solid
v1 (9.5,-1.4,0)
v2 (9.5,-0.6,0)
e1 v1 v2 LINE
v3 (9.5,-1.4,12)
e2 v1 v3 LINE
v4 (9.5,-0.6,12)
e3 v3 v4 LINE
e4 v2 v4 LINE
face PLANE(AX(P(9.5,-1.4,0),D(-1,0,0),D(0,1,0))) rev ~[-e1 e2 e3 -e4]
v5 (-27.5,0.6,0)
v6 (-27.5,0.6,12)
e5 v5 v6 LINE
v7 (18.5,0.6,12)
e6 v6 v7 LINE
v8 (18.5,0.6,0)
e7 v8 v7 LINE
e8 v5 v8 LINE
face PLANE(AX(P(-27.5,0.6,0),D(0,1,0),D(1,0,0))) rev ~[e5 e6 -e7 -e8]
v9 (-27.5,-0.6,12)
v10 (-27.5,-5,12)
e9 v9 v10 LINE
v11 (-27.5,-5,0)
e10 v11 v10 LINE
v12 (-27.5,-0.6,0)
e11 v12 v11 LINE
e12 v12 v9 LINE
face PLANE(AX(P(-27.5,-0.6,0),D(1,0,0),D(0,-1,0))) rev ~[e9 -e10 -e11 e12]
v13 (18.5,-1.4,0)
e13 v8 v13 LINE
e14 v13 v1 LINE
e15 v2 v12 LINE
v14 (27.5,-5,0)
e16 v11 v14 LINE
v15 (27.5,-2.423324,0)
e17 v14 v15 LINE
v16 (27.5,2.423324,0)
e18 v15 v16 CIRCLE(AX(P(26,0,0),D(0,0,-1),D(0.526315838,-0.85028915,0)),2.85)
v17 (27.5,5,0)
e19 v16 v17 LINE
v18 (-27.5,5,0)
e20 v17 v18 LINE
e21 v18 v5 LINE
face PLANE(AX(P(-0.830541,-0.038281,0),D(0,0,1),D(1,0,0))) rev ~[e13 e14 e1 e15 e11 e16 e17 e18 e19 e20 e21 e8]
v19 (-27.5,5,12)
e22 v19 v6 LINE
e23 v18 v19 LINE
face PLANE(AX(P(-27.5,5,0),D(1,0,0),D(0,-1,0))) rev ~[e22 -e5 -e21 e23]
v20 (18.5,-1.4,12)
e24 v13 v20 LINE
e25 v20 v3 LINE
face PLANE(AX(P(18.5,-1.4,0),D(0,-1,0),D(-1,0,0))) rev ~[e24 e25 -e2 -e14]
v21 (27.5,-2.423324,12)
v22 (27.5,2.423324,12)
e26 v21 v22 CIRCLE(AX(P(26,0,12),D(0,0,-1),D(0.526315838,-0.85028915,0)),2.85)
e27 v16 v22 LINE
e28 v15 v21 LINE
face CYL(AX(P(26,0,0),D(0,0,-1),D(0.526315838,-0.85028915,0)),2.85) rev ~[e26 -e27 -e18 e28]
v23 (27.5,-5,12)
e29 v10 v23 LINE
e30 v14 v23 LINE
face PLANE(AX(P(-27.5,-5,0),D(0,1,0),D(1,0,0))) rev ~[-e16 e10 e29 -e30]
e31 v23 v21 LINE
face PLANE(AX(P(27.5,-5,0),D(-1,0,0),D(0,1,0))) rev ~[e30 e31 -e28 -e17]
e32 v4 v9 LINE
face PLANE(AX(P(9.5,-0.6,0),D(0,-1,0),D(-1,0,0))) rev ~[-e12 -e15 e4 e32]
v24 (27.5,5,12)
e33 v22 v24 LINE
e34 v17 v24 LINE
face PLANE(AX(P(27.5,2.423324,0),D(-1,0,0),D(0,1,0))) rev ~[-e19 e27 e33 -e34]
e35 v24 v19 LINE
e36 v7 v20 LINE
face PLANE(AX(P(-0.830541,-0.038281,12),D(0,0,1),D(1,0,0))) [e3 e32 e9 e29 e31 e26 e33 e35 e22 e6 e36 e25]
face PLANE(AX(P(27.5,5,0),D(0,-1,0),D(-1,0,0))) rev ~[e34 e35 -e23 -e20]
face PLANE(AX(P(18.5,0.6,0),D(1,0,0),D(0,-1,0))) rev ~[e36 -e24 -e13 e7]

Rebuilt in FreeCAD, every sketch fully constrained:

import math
import FreeCAD as App
import Part
import Sketcher

V = App.Vector

doc = App.newDocument("Part")
body = doc.addObject("PartDesign::Body", "Body")

# Sketch on XY plane
sketch1 = doc.addObject("Sketcher::SketchObject", "Sketch")
body.addObject(sketch1)
sketch1.AttachmentSupport = (doc.XY_Plane, [""])
sketch1.MapMode = "FlatFace"
sketch1.addGeometry([
    Part.LineSegment(V(27.5, 2.4, 0), V(27.5, 5, 0)),  # 0
    Part.LineSegment(V(27.5, 5, 0), V(-27.5, 5, 0)),  # 1
    Part.LineSegment(V(-27.5, 5, 0), V(-27.5, 0.6, 0)),  # 2
    Part.LineSegment(V(-27.5, 0.6, 0), V(18.5, 0.6, 0)),  # 3
    Part.LineSegment(V(18.5, 0.6, 0), V(18.5, -1.4, 0)),  # 4
    Part.LineSegment(V(18.5, -1.4, 0), V(9.5, -1.4, 0)),  # 5
    Part.LineSegment(V(9.5, -1.4, 0), V(9.5, -0.6, 0)),  # 6
    Part.LineSegment(V(9.5, -0.6, 0), V(-27.5, -0.6, 0)),  # 7
    Part.LineSegment(V(-27.5, -0.6, 0), V(-27.5, -5, 0)),  # 8
    Part.LineSegment(V(-27.5, -5, 0), V(27.5, -5, 0)),  # 9
    Part.LineSegment(V(27.5, -5, 0), V(27.5, -2.4, 0)),  # 10
    Part.ArcOfCircle(Part.Circle(V(26, 0, 0), V(0, 0, 1), 2.8), math.radians(58), math.radians(302)),  # 11
], False)
sketch1.addConstraint([
    Sketcher.Constraint("Coincident", 0, 2, 1, 1),
    Sketcher.Constraint("Coincident", 1, 2, 2, 1),
    Sketcher.Constraint("Coincident", 2, 2, 3, 1),
    Sketcher.Constraint("Coincident", 3, 2, 4, 1),
    Sketcher.Constraint("Coincident", 4, 2, 5, 1),
    Sketcher.Constraint("Coincident", 5, 2, 6, 1),
    Sketcher.Constraint("Coincident", 6, 2, 7, 1),
    Sketcher.Constraint("Coincident", 7, 2, 8, 1),
    Sketcher.Constraint("Coincident", 8, 2, 9, 1),
    Sketcher.Constraint("Coincident", 9, 2, 10, 1),
    Sketcher.Constraint("Coincident", 10, 2, 11, 2),
    Sketcher.Constraint("Coincident", 11, 1, 0, 1),
    Sketcher.Constraint("Vertical", 0),
    Sketcher.Constraint("Horizontal", 1),
    Sketcher.Constraint("Vertical", 2),
    Sketcher.Constraint("Horizontal", 3),
    Sketcher.Constraint("Vertical", 4),
    Sketcher.Constraint("Horizontal", 5),
    Sketcher.Constraint("Vertical", 6),
    Sketcher.Constraint("Horizontal", 7),
    Sketcher.Constraint("Vertical", 8),
    Sketcher.Constraint("Horizontal", 9),
    Sketcher.Constraint("Vertical", 10),
    Sketcher.Constraint("Symmetric", 0, 2, 8, 2, -1, 1),
    Sketcher.Constraint("Symmetric", 2, 2, 7, 2, -1),
    Sketcher.Constraint("Symmetric", 10, 2, 11, 1, -1),
    Sketcher.Constraint("DistanceX", 1, 2, 1, 1, 55.0),
    Sketcher.Constraint("DistanceX", 3, 1, 3, 2, 46.0),
    Sketcher.Constraint("DistanceX", 5, 2, 5, 1, 9.0),
    Sketcher.Constraint("DistanceY", 4, 2, 4, 1, 2.0),
    Sketcher.Constraint("Radius", 11, 2.85),
    Sketcher.Constraint("DistanceY", 2, 2, 2, 1, 4.4),
    Sketcher.Constraint("DistanceY", 6, 1, 6, 2, 0.8),
    Sketcher.Constraint("DistanceX", -1, 1, 11, 3, 26.0),
])
pad1 = doc.addObject("PartDesign::Pad", "Pad")
body.addObject(pad1)
pad1.Profile = sketch1
pad1.Length = 12

doc.recompute()
